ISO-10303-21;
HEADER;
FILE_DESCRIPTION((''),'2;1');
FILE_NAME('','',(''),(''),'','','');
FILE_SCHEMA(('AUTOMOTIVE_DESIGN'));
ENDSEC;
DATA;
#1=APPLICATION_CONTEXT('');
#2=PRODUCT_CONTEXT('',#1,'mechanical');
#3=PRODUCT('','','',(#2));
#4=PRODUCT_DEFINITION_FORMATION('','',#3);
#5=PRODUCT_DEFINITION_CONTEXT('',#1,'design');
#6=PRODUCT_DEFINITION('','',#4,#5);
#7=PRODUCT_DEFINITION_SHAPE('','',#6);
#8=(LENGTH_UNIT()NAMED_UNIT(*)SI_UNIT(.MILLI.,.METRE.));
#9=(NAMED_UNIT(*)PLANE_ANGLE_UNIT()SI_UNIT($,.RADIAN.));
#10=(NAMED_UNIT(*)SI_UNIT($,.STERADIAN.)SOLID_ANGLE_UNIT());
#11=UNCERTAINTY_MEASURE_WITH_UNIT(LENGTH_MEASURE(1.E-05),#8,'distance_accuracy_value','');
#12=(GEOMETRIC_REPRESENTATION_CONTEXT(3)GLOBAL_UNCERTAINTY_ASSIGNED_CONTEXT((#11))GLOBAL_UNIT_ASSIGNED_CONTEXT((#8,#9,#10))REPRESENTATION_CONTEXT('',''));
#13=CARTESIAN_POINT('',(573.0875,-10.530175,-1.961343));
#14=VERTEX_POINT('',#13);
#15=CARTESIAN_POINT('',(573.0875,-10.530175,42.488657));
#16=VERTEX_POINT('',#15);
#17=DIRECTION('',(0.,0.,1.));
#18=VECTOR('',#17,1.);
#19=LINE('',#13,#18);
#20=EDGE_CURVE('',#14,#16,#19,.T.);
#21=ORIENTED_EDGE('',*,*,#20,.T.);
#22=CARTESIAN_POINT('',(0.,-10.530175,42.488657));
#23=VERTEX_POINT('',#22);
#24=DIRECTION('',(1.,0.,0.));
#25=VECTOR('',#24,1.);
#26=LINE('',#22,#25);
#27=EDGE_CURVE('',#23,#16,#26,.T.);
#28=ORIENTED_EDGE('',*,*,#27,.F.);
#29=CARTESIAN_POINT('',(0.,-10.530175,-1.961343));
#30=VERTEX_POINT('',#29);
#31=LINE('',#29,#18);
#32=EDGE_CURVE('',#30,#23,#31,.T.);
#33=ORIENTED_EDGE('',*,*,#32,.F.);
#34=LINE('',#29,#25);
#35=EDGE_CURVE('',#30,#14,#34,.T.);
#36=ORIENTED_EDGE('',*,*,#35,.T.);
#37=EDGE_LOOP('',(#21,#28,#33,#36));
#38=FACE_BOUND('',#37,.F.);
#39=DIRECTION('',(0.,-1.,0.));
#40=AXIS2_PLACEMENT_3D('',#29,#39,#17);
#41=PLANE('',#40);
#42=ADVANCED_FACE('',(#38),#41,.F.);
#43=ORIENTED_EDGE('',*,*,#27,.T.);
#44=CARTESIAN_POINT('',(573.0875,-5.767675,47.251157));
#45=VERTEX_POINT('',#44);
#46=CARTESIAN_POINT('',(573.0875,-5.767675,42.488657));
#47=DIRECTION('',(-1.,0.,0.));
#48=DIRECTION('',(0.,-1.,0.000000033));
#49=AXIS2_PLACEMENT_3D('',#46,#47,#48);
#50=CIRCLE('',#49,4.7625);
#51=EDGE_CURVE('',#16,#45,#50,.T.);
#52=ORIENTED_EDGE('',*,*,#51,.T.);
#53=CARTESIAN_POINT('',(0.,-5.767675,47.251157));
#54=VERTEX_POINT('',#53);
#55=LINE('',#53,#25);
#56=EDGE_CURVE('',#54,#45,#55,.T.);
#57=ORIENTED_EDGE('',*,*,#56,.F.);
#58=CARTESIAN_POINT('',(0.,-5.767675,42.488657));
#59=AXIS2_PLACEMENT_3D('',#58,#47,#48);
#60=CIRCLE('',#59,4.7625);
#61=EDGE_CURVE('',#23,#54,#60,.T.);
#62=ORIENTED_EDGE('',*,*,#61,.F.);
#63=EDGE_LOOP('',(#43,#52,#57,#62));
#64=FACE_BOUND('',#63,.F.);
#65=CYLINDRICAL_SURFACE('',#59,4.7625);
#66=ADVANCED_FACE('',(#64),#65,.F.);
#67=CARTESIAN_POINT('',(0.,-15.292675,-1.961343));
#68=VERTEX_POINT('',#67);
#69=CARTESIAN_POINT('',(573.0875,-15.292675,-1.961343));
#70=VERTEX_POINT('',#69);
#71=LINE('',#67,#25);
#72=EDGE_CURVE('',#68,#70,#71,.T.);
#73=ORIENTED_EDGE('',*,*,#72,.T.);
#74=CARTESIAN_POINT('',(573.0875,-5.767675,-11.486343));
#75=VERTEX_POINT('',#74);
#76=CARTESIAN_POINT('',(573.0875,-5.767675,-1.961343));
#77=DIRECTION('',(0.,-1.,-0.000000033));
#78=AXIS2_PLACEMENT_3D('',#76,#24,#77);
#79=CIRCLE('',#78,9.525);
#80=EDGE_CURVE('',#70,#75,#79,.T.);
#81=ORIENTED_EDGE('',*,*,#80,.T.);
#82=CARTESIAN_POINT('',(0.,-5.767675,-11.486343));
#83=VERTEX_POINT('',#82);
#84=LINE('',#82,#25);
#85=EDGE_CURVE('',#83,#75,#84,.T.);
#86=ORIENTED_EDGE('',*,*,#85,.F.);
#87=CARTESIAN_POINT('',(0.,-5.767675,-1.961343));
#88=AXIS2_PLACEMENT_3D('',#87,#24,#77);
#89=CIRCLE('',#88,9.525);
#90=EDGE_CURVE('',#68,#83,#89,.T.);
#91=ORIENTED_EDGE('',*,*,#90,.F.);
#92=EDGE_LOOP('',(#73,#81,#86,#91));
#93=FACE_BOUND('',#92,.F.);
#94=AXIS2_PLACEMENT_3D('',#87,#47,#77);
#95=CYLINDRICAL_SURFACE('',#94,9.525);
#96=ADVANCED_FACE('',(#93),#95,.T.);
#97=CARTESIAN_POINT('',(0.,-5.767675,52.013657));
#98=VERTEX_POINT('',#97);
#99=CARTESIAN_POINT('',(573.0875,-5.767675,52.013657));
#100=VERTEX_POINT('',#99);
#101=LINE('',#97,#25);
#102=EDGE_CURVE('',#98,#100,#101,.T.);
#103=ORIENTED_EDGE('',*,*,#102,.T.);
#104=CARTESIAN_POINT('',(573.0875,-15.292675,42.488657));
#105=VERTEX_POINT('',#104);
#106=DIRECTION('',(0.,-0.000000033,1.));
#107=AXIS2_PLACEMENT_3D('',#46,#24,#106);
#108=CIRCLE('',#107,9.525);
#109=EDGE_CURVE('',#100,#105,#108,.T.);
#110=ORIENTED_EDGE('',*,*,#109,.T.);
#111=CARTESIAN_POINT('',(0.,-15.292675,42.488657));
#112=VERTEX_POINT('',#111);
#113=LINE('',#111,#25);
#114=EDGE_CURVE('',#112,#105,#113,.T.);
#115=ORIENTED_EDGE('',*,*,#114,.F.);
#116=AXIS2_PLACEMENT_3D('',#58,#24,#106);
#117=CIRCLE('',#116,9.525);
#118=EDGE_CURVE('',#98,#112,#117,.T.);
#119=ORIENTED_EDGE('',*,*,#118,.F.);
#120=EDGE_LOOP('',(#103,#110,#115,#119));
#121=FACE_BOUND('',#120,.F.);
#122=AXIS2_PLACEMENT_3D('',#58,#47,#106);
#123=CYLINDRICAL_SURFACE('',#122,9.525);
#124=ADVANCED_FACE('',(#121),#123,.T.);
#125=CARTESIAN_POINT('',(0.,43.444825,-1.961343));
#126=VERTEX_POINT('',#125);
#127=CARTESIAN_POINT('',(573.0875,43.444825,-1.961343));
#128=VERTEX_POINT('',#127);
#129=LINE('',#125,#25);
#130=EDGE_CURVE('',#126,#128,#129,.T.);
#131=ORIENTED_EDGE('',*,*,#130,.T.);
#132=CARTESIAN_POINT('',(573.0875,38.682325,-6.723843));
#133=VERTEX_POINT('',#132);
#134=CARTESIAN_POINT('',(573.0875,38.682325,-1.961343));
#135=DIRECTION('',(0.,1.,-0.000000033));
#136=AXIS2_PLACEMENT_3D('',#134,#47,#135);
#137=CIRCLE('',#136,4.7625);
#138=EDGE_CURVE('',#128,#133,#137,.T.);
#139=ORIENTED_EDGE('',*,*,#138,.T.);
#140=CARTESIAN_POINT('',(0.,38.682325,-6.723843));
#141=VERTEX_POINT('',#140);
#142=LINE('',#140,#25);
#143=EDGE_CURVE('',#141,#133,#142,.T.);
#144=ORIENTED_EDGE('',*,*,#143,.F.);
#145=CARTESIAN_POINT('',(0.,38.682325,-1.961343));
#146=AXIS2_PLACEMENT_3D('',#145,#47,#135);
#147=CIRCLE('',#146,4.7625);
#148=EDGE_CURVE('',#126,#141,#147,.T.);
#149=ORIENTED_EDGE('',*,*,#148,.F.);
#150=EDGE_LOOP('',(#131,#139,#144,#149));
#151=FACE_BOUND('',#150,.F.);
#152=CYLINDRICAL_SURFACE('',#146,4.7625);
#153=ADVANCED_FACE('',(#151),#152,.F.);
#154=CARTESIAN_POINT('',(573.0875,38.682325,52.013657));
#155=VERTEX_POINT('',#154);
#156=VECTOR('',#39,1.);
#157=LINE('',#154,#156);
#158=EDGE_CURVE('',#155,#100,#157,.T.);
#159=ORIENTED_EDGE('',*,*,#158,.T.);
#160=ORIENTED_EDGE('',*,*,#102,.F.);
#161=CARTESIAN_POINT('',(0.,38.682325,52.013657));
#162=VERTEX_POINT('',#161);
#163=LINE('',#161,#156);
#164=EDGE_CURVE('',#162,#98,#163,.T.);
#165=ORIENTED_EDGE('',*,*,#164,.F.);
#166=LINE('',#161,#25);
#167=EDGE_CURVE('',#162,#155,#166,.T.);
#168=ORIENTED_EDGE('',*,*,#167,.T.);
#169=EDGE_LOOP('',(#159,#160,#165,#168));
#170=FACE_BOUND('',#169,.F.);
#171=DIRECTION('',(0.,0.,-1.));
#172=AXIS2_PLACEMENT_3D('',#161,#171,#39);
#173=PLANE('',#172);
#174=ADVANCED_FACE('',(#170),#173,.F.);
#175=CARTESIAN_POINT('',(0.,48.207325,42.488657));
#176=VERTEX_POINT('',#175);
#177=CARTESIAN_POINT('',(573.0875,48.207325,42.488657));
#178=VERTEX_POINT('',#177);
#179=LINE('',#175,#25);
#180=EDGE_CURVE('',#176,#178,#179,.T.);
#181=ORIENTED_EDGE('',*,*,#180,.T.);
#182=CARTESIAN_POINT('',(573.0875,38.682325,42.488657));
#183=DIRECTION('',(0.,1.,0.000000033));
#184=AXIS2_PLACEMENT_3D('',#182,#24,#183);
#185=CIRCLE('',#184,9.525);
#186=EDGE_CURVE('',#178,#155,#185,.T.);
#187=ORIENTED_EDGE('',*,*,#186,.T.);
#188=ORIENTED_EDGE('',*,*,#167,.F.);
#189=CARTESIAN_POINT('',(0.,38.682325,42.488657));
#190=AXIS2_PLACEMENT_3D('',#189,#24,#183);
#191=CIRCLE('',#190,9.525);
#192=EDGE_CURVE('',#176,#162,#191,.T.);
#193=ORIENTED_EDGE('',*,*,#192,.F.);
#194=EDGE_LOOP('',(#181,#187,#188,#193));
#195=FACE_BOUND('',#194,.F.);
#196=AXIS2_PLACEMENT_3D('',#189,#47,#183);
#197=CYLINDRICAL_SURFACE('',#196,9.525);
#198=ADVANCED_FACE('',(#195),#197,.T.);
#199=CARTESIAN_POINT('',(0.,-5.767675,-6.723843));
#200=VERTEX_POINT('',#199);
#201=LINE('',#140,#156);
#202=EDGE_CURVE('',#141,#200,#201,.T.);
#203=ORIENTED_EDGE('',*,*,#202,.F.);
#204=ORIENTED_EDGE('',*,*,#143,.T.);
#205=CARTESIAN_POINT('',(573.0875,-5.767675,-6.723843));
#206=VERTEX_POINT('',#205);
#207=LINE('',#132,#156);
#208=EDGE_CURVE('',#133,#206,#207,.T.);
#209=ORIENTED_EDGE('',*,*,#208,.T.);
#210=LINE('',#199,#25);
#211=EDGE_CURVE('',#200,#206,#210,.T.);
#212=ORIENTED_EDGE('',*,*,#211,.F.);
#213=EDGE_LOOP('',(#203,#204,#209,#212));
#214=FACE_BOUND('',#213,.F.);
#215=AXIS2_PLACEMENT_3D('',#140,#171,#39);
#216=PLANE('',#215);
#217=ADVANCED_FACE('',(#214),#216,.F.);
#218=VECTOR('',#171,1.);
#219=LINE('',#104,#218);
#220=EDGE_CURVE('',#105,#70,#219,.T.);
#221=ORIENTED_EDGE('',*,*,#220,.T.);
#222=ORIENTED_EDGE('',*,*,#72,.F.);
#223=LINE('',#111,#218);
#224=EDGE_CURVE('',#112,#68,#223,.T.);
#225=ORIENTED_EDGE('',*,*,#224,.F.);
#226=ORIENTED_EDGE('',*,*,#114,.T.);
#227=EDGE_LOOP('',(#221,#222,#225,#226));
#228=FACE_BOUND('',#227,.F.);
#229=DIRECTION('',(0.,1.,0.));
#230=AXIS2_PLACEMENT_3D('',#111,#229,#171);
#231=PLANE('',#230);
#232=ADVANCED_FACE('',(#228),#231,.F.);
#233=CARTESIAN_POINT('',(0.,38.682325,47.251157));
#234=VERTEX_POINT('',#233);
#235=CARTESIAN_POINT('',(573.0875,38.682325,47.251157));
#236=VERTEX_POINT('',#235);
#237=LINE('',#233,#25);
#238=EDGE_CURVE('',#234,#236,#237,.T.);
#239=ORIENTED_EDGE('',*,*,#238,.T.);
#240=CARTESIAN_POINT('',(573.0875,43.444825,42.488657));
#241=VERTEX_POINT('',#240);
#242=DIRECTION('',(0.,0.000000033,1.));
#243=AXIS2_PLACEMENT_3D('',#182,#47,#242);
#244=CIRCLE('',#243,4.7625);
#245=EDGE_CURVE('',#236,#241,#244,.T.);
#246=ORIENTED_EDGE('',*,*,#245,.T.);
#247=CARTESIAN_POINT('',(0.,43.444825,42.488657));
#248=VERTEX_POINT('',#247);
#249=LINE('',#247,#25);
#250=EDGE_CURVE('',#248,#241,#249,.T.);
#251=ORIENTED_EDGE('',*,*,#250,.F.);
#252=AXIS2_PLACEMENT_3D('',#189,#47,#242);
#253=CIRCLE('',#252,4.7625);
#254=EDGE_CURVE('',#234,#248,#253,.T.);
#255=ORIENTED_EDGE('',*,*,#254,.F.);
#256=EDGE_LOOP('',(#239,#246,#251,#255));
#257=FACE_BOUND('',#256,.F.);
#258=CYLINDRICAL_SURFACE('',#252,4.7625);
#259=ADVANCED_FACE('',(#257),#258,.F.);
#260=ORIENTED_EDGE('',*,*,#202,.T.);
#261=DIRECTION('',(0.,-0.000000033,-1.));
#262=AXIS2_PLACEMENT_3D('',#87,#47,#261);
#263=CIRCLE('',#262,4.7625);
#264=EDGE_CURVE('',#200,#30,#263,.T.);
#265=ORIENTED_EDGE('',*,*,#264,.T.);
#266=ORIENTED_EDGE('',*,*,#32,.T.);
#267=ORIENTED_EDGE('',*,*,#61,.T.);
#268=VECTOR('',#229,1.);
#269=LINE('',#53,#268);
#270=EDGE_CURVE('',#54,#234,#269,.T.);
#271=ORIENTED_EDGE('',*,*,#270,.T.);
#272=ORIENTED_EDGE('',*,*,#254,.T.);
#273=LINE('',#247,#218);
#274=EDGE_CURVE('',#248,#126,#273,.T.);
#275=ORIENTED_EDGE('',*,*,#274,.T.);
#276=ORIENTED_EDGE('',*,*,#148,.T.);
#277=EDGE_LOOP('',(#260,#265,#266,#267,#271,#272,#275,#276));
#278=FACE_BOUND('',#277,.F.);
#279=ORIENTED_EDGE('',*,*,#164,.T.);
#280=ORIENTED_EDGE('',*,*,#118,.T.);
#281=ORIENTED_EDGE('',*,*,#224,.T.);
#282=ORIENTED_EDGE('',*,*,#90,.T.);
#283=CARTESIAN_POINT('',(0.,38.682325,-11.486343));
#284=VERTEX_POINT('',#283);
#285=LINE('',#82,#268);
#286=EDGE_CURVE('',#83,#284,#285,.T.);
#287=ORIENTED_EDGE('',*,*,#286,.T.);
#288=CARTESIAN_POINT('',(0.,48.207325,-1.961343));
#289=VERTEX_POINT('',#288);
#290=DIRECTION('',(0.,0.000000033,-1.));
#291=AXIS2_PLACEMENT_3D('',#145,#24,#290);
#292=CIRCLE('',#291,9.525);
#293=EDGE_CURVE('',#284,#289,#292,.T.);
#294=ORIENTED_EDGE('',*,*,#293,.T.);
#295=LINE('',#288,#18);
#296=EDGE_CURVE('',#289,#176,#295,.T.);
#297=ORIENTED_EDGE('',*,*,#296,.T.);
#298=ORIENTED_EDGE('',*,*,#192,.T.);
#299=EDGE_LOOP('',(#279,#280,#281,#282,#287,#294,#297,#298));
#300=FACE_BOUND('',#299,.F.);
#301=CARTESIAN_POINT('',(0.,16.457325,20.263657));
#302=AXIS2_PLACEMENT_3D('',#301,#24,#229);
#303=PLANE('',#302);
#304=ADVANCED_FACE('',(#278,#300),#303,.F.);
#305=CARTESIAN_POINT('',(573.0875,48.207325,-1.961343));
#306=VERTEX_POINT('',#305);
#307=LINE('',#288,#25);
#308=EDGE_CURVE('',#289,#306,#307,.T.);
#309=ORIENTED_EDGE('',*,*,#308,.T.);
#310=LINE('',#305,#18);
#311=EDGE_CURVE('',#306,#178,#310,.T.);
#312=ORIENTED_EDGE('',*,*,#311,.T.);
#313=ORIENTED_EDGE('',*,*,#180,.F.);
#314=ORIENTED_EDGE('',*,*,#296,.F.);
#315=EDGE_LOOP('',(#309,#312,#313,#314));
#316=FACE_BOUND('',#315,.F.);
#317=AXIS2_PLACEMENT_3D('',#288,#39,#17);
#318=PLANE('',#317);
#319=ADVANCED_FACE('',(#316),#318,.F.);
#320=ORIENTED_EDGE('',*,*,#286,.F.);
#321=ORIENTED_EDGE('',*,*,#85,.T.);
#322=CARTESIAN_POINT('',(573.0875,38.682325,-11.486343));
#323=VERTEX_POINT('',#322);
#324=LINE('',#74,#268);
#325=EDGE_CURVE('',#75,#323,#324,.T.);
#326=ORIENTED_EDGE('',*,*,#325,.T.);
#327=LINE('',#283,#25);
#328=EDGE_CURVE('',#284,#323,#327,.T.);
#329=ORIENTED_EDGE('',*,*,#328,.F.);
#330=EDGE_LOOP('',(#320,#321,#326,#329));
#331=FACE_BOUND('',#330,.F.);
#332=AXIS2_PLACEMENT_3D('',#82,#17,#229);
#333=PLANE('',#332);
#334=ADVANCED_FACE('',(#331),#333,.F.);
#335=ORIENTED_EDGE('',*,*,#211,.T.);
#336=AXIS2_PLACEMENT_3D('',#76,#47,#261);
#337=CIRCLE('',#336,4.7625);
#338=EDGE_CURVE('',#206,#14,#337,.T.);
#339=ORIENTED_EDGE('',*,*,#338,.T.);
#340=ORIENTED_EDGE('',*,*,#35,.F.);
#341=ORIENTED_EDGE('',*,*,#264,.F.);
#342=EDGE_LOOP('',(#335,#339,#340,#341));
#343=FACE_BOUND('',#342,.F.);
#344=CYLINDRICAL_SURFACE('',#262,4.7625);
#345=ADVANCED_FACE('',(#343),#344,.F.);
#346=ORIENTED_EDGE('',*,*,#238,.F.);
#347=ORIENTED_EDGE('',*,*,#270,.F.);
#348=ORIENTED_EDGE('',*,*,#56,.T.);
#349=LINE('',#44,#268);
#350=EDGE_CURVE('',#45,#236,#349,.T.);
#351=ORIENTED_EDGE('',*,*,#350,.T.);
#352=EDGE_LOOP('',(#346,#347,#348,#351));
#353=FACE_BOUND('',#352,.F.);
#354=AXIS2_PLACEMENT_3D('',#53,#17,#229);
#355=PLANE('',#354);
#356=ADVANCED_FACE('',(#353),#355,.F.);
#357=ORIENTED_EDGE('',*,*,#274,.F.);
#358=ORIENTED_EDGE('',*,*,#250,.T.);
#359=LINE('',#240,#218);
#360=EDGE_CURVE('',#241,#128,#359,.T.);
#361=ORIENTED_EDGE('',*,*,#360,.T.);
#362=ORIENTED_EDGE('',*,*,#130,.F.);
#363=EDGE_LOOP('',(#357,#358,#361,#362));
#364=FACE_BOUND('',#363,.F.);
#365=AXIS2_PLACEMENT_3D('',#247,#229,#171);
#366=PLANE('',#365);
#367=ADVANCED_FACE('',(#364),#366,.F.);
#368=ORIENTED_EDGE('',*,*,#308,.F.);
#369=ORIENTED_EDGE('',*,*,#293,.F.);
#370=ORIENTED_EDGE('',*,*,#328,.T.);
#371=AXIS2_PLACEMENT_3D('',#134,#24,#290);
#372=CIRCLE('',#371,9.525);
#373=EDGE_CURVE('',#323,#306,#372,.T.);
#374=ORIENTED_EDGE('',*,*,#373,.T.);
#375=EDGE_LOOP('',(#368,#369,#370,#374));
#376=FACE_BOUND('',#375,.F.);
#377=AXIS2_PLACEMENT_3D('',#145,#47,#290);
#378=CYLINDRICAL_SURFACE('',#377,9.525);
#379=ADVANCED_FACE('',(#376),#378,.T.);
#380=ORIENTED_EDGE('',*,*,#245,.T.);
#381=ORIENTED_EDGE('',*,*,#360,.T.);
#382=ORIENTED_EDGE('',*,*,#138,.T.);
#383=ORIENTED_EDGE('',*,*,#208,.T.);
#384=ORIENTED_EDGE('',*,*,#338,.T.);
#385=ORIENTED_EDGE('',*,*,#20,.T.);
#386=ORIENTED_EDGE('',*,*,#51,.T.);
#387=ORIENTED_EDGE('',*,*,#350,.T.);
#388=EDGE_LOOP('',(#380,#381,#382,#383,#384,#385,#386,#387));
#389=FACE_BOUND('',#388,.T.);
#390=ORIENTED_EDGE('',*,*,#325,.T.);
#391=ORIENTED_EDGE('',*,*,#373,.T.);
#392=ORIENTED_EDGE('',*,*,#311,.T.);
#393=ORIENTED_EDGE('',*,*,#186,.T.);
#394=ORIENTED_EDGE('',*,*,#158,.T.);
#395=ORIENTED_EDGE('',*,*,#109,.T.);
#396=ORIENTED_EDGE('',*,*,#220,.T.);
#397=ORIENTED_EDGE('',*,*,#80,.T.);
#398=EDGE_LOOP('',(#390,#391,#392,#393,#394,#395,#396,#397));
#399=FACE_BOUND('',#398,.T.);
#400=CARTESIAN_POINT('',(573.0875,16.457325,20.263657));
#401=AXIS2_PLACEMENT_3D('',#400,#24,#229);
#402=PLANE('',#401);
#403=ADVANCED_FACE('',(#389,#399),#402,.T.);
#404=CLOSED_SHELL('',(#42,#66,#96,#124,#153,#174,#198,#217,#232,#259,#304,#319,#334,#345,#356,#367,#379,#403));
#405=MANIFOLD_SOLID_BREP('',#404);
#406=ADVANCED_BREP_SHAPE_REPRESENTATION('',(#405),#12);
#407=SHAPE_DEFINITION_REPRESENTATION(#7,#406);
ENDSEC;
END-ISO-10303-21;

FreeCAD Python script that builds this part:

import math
import FreeCAD as App
import Part
import Sketcher
from FreeCAD import Vector
Q = App.Units.Quantity

doc = App.newDocument("Part")
params = doc.addObject("Spreadsheet::Sheet", "Params")
for row, (alias, value) in enumerate([
    ("sketch1_radius", "0.375 in"),
    ("sketch1_radius2", "0.1875 in"),
    ("sketch1_width", "1.75 in"),
    ("pad1_length", "22.5625 in"),
], start=1):
    params.set(f"A{row}", alias)
    params.set(f"B{row}", "=" + value)
    params.setAlias(f"B{row}", alias)

body = doc.addObject("PartDesign::Body", "Body")

sketch1 = body.newObject("Sketcher::SketchObject", "Sketch")
sketch1.AttachmentSupport = (doc.getObject("YZ_Plane"), [""])
sketch1.MapMode = "FlatFace"
sketch1.addGeometry([
    Part.ArcOfCircle(Part.Circle(Vector(38.7, -2, 0), Vector(0, 0, 1), 9.5), math.radians(-90), math.radians(0)),
    Part.LineSegment(Vector(48.2, -2, 0), Vector(48.2, 42.5, 0)),
    Part.ArcOfCircle(Part.Circle(Vector(38.7, 42.5, 0), Vector(0, 0, 1), 9.5), math.radians(0), math.radians(90)),
    Part.LineSegment(Vector(38.7, 52, 0), Vector(-5.8, 52, 0)),
    Part.ArcOfCircle(Part.Circle(Vector(-5.8, 42.5, 0), Vector(0, 0, 1), 9.5), math.radians(90), math.radians(180)),
    Part.LineSegment(Vector(-15.3, 42.5, 0), Vector(-15.3, -2, 0)),
    Part.ArcOfCircle(Part.Circle(Vector(-5.8, -2, 0), Vector(0, 0, 1), 9.5), math.radians(-180), math.radians(-90)),
    Part.LineSegment(Vector(-5.8, -11.5, 0), Vector(38.7, -11.5, 0)),
    Part.LineSegment(Vector(-10.5, -2, 0), Vector(-10.5, 42.5, 0)),
    Part.ArcOfCircle(Part.Circle(Vector(-5.8, 42.5, 0), Vector(0, 0, 1), 4.8), math.radians(90), math.radians(180)),
    Part.LineSegment(Vector(-5.8, 47.3, 0), Vector(38.7, 47.3, 0)),
    Part.ArcOfCircle(Part.Circle(Vector(38.7, 42.5, 0), Vector(0, 0, 1), 4.8), math.radians(0), math.radians(90)),
    Part.LineSegment(Vector(43.4, 42.5, 0), Vector(43.4, -2, 0)),
    Part.ArcOfCircle(Part.Circle(Vector(38.7, -2, 0), Vector(0, 0, 1), 4.8), math.radians(-90), math.radians(0)),
    Part.LineSegment(Vector(38.7, -6.7, 0), Vector(-5.8, -6.7, 0)),
    Part.ArcOfCircle(Part.Circle(Vector(-5.8, -2, 0), Vector(0, 0, 1), 4.8), math.radians(-180), math.radians(-90)),
], False)
sketch1.addConstraint([
    Sketcher.Constraint("Tangent", 0, 2, 1, 1),
    Sketcher.Constraint("Tangent", 1, 2, 2, 1),
    Sketcher.Constraint("Tangent", 2, 2, 3, 1),
    Sketcher.Constraint("Tangent", 3, 2, 4, 1),
    Sketcher.Constraint("Tangent", 4, 2, 5, 1),
    Sketcher.Constraint("Tangent", 5, 2, 6, 1),
    Sketcher.Constraint("Tangent", 6, 2, 7, 1),
    Sketcher.Constraint("Tangent", 7, 2, 0, 1),
    Sketcher.Constraint("Tangent", 8, 2, 9, 2),
    Sketcher.Constraint("Tangent", 9, 1, 10, 1),
    Sketcher.Constraint("Tangent", 10, 2, 11, 2),
    Sketcher.Constraint("Tangent", 11, 1, 12, 1),
    Sketcher.Constraint("Tangent", 12, 2, 13, 2),
    Sketcher.Constraint("Tangent", 13, 1, 14, 1),
    Sketcher.Constraint("Tangent", 14, 2, 15, 2),
    Sketcher.Constraint("Tangent", 15, 1, 8, 1),
    Sketcher.Constraint("Vertical", 1),
    Sketcher.Constraint("Horizontal", 3),
    Sketcher.Constraint("Vertical", 5),
    Sketcher.Constraint("Horizontal", 7),
    Sketcher.Constraint("Vertical", 8),
    Sketcher.Constraint("Horizontal", 10),
    Sketcher.Constraint("Vertical", 12),
    Sketcher.Constraint("Horizontal", 14),
    Sketcher.Constraint("Coincident", 9, 3, 4, 3),
    Sketcher.Constraint("Coincident", 11, 3, 2, 3),
    Sketcher.Constraint("Coincident", 13, 3, 0, 3),
    Sketcher.Constraint("Equal", 0, 2),
    Sketcher.Constraint("Equal", 2, 4),
    Sketcher.Constraint("Equal", 4, 6),
    Sketcher.Constraint("Equal", 13, 15),
    Sketcher.Constraint("Equal", 14, 1),
    Sketcher.Constraint("Radius", 0, Q("0.375 in")),
    Sketcher.Constraint("Radius", 9, Q("0.1875 in")),
    Sketcher.Constraint("DistanceX", 3, 2, 3, 1, Q("1.75 in")),
    Sketcher.Constraint("DistanceX", -1, 1, 0, 3, Q("38.682325 mm")),
    Sketcher.Constraint("DistanceY", 0, 3, -1, 1, Q("1.961343 mm")),
])
sketch1.setExpression("Constraints[32]", "Params.sketch1_radius")
sketch1.setExpression("Constraints[33]", "Params.sketch1_radius2")
sketch1.setExpression("Constraints[34]", "Params.sketch1_width")
pad1 = body.newObject("PartDesign::Pad", "Pad")
pad1.Profile = sketch1
pad1.setExpression("Length", "Params.pad1_length")

doc.recompute()
